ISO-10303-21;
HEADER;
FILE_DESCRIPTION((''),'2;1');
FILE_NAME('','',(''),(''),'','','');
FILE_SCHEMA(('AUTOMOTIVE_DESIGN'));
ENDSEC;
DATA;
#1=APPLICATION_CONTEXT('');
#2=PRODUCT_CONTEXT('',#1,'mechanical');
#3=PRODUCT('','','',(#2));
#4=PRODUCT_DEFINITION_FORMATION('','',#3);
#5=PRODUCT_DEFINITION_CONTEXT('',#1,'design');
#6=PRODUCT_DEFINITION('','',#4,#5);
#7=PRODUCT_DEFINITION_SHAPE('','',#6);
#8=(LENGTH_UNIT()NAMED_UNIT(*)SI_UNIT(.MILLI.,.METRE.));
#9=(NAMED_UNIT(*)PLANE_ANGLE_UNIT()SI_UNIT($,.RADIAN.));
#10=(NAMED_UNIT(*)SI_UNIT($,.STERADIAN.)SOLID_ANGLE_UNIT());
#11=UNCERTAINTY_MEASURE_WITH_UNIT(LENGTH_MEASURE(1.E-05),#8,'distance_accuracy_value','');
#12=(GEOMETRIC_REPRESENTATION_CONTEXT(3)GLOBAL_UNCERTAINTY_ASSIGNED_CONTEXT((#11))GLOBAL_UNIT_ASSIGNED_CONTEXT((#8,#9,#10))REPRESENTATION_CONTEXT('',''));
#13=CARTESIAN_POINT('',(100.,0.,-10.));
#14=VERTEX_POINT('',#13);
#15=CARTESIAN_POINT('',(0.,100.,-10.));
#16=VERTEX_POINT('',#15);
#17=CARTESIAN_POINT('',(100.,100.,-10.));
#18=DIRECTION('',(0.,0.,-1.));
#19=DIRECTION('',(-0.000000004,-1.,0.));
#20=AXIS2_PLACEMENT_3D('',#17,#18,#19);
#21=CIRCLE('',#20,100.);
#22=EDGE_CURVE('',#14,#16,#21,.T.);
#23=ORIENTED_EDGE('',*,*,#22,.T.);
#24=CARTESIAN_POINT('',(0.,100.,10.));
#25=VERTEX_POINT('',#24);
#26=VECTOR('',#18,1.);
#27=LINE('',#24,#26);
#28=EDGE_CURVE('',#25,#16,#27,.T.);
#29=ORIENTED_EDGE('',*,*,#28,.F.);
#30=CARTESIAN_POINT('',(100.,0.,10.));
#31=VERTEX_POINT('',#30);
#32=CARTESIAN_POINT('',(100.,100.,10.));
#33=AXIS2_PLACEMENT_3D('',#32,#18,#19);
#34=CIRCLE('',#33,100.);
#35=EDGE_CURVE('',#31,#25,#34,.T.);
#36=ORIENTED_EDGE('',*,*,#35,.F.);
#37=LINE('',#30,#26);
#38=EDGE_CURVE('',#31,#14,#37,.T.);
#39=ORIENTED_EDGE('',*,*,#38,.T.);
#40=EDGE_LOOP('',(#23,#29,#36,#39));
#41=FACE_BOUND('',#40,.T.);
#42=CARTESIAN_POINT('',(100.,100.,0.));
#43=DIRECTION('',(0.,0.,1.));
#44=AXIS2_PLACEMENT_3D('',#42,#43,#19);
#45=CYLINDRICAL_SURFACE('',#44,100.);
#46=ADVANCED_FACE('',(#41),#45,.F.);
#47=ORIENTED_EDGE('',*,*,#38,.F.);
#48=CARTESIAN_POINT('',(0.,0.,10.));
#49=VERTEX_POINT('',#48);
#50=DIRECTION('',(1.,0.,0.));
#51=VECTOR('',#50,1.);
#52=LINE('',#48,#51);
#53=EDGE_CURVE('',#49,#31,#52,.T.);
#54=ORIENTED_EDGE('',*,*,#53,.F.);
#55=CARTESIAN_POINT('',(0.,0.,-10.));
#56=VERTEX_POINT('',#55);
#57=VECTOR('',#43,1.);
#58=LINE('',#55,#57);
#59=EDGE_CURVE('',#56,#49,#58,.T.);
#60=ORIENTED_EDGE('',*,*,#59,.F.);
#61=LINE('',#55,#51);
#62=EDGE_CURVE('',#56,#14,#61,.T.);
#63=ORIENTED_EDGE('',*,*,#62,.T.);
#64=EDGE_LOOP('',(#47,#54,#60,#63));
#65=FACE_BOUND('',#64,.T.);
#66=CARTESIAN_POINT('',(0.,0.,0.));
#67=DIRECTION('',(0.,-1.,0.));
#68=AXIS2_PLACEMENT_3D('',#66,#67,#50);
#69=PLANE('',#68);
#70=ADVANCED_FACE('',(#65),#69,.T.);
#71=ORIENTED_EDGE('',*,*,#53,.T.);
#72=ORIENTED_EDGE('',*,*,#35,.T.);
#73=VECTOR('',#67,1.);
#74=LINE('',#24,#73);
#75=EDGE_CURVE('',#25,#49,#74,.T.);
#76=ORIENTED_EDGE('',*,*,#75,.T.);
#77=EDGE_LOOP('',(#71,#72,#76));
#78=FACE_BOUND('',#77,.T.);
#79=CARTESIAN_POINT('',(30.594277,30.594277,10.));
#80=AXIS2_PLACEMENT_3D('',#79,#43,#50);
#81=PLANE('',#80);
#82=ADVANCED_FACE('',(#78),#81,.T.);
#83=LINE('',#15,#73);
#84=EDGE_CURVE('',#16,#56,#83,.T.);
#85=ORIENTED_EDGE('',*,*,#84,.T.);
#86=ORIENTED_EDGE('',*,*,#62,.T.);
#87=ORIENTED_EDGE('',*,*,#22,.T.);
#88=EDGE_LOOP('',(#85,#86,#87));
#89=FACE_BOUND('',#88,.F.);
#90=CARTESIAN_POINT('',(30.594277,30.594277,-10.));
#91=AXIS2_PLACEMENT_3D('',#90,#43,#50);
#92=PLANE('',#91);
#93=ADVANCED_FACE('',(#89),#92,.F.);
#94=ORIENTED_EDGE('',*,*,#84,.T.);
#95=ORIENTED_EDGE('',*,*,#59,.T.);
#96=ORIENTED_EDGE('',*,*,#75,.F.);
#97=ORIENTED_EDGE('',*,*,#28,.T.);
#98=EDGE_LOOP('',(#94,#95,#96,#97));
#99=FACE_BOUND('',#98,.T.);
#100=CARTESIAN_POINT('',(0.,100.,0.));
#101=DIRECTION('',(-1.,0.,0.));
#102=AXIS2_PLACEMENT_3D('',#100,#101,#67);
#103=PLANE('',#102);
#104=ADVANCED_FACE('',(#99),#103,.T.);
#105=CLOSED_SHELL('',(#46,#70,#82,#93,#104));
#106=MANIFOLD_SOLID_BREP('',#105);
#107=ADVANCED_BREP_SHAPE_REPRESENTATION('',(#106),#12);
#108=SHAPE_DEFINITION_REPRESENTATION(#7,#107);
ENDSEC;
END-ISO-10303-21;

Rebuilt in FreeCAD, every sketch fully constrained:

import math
import FreeCAD as App
import Part
import Sketcher
from FreeCAD import Vector
Q = App.Units.Quantity

doc = App.newDocument("Part")
params = doc.addObject("Spreadsheet::Sheet", "Params")
for row, (alias, value) in enumerate([
    ("sketch1_radius", "100 mm"),
    ("pad1_length", "20 mm"),
], start=1):
    params.set(f"A{row}", alias)
    params.set(f"B{row}", "=" + value)
    params.setAlias(f"B{row}", alias)

body = doc.addObject("PartDesign::Body", "Body")

# Sketch on XY plane
sketch1 = body.newObject("Sketcher::SketchObject", "Sketch")
sketch1.AttachmentSupport = (doc.getObject("XY_Plane"), [""])
sketch1.MapMode = "FlatFace"
sketch1.addGeometry([
    Part.LineSegment(Vector(0, 100, 0), Vector(0, 0, 0)),
    Part.LineSegment(Vector(0, 0, 0), Vector(100, 0, 0)),
    Part.ArcOfCircle(Part.Circle(Vector(100, 100, 0), Vector(0, 0, 1), 100), math.radians(-180), math.radians(-90)),
], False)
sketch1.addConstraint([
    Sketcher.Constraint("Coincident", 0, 2, 1, 1),
    Sketcher.Constraint("Tangent", 1, 2, 2, 2),
    Sketcher.Constraint("Tangent", 2, 1, 0, 1),
    Sketcher.Constraint("Vertical", 0),
    Sketcher.Constraint("Horizontal", 1),
    Sketcher.Constraint("Coincident", 0, 2, -1, 1),
    Sketcher.Constraint("Radius", 2, Q("100 mm")),
])
sketch1.setExpression("Constraints[6]", "Params.sketch1_radius")
pad1 = body.newObject("PartDesign::Pad", "Pad")
pad1.Profile = sketch1
pad1.setExpression("Length", "Params.pad1_length")
pad1.Midplane = True

doc.recompute()
